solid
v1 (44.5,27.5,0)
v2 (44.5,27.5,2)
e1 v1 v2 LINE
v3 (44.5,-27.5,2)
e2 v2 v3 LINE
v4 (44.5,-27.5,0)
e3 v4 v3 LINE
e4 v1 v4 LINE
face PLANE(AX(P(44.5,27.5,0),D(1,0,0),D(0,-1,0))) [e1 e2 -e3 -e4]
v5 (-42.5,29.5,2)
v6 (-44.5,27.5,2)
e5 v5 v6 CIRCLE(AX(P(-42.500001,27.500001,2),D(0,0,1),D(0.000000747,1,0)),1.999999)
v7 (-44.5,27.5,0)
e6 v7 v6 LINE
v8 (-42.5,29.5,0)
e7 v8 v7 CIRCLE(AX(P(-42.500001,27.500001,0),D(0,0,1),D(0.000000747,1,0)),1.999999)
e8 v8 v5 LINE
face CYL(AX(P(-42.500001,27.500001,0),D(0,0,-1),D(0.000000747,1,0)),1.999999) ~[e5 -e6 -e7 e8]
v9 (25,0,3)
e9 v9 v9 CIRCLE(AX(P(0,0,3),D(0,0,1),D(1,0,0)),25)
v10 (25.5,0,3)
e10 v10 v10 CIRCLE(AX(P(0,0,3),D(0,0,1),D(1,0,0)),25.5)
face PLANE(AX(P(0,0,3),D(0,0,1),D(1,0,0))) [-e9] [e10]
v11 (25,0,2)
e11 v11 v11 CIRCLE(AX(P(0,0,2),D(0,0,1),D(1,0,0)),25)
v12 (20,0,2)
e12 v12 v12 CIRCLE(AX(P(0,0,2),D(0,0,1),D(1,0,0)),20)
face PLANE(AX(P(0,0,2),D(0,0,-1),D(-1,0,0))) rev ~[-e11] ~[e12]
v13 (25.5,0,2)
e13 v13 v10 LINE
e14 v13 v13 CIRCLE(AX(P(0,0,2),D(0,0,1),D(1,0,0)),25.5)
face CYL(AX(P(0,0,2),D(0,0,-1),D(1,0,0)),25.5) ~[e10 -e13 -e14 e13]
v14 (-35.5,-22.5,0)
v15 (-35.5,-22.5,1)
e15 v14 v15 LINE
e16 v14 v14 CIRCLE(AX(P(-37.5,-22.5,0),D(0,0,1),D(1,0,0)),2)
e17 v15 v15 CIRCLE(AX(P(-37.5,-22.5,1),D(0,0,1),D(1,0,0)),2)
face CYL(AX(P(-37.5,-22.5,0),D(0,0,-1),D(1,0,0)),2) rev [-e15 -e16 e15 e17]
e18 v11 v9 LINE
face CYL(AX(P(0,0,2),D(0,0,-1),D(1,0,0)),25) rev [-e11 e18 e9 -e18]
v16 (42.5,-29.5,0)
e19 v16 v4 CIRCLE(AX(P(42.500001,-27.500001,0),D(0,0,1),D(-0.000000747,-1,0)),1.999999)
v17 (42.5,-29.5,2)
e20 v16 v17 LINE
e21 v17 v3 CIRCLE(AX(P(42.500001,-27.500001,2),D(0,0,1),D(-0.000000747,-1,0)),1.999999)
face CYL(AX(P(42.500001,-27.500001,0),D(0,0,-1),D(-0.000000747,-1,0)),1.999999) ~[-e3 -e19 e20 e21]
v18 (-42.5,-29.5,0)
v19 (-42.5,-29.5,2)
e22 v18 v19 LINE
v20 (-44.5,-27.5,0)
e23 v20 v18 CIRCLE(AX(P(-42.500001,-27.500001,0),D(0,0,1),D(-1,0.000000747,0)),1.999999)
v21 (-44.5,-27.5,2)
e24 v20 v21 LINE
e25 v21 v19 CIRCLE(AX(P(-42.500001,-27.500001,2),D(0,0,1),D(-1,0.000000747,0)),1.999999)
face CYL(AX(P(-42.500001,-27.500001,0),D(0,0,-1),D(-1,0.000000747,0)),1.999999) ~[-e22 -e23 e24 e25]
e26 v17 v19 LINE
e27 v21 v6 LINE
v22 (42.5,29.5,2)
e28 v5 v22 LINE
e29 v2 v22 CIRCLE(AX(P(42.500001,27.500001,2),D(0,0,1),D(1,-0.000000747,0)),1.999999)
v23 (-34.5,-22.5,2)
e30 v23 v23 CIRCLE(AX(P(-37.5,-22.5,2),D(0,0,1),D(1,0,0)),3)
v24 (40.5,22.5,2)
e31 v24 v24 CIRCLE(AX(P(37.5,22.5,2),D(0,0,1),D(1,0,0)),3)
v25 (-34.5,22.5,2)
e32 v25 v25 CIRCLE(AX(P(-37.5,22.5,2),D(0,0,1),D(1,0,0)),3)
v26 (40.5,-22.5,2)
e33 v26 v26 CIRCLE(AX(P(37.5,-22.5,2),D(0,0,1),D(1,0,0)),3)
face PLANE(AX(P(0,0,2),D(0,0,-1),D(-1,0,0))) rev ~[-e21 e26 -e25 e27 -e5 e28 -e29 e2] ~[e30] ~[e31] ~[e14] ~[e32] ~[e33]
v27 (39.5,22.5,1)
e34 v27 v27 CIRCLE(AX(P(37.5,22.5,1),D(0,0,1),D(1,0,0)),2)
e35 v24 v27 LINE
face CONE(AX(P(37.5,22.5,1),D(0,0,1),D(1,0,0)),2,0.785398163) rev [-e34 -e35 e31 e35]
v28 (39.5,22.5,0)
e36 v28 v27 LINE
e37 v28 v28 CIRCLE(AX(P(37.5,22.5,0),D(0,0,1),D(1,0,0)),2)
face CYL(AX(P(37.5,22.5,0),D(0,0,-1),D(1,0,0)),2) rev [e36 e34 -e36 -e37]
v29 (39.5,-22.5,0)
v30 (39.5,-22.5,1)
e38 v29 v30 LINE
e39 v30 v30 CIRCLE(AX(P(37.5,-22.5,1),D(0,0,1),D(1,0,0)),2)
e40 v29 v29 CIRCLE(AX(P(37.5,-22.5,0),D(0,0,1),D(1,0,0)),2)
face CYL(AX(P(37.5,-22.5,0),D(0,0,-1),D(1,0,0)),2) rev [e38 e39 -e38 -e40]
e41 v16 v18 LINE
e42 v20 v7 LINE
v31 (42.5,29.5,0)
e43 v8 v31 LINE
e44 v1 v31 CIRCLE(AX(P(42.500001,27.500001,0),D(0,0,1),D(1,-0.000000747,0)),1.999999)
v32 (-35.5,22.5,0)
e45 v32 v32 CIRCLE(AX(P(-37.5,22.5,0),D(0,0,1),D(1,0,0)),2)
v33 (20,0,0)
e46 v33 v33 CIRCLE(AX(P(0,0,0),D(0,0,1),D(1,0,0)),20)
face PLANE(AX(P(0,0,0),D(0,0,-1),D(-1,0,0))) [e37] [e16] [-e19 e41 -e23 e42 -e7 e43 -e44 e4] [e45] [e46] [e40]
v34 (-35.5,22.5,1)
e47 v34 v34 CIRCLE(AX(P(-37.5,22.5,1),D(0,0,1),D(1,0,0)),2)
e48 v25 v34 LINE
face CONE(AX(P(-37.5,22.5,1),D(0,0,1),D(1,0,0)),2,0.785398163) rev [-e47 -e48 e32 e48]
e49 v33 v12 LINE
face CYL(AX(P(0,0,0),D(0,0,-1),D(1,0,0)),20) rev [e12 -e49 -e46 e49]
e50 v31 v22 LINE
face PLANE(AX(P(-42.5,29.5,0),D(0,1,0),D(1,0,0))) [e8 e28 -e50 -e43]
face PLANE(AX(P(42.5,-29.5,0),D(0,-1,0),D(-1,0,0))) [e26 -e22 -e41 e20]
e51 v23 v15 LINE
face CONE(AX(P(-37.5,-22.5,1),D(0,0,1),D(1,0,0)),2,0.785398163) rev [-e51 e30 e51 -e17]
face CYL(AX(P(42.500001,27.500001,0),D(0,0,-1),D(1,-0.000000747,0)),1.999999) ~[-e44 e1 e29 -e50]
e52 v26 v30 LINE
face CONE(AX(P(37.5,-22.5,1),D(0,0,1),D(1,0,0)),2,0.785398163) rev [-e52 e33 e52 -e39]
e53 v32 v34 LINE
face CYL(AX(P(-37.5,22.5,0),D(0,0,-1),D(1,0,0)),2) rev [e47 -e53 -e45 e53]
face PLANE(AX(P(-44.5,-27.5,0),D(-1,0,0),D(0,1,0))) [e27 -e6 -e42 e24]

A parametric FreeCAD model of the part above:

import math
import FreeCAD as App
import Part
import Sketcher
from FreeCAD import Vector
Q = App.Units.Quantity


def edges_at(feature, points):
    """Names of the edges that pass closest to the given points."""
    edges = feature.Shape.Edges
    near = lambda p: min(range(len(edges)), key=lambda i: edges[i].distToShape(Part.Vertex(*p))[0])
    return sorted({f"Edge{near(p) + 1}" for p in points})

doc = App.newDocument("Part")
body = doc.addObject("PartDesign::Body", "Body")

sketch1 = body.newObject("Sketcher::SketchObject", "Sketch")
sketch1.AttachmentSupport = (doc.getObject("XY_Plane"), [""])
sketch1.MapMode = "FlatFace"
sketch1.addGeometry(Part.LineSegment(Vector(42.5, 29.5, 0), Vector(-42.5, 29.5, 0)), False)
sketch1.addGeometry(Part.ArcOfCircle(Part.Circle(Vector(-42.5, 27.5, 0), Vector(0, 0, 1), 2), math.radians(90), math.radians(180)), False)
sketch1.addGeometry(Part.LineSegment(Vector(-44.5, 27.5, 0), Vector(-44.5, -27.5, 0)), False)
sketch1.addGeometry(Part.ArcOfCircle(Part.Circle(Vector(-42.5, -27.5, 0), Vector(0, 0, 1), 2), math.radians(180), math.radians(270)), False)
sketch1.addGeometry(Part.LineSegment(Vector(-42.5, -29.5, 0), Vector(42.5, -29.5, 0)), False)
sketch1.addGeometry(Part.ArcOfCircle(Part.Circle(Vector(42.5, -27.5, 0), Vector(0, 0, 1), 2), math.radians(-90), math.radians(0)), False)
sketch1.addGeometry(Part.LineSegment(Vector(44.5, -27.5, 0), Vector(44.5, 27.5, 0)), False)
sketch1.addGeometry(Part.ArcOfCircle(Part.Circle(Vector(42.5, 27.5, 0), Vector(0, 0, 1), 2), math.radians(0), math.radians(90)), False)
sketch1.addGeometry(Part.Circle(Vector(37.5, -22.5, 0), Vector(0, 0, 1), 2), False)
sketch1.addGeometry(Part.Circle(Vector(-37.5, -22.5, 0), Vector(0, 0, 1), 2), False)
sketch1.addGeometry(Part.Circle(Vector(0, 0, 0), Vector(0, 0, 1), 20), False)
sketch1.addGeometry(Part.Circle(Vector(37.5, 22.5, 0), Vector(0, 0, 1), 2), False)
sketch1.addGeometry(Part.Circle(Vector(-37.5, 22.5, 0), Vector(0, 0, 1), 2), False)
sketch1.addConstraint(Sketcher.Constraint("Tangent", 0, 2, 1, 1))
sketch1.addConstraint(Sketcher.Constraint("Tangent", 1, 2, 2, 1))
sketch1.addConstraint(Sketcher.Constraint("Tangent", 2, 2, 3, 1))
sketch1.addConstraint(Sketcher.Constraint("Tangent", 3, 2, 4, 1))
sketch1.addConstraint(Sketcher.Constraint("Tangent", 4, 2, 5, 1))
sketch1.addConstraint(Sketcher.Constraint("Tangent", 5, 2, 6, 1))
sketch1.addConstraint(Sketcher.Constraint("Tangent", 6, 2, 7, 1))
sketch1.addConstraint(Sketcher.Constraint("Tangent", 7, 2, 0, 1))
sketch1.addConstraint(Sketcher.Constraint("Horizontal", 0))
sketch1.addConstraint(Sketcher.Constraint("Vertical", 2))
sketch1.addConstraint(Sketcher.Constraint("Horizontal", 4))
sketch1.addConstraint(Sketcher.Constraint("Vertical", 6))
sketch1.addConstraint(Sketcher.Constraint("Coincident", 10, 3, -1, 1))
sketch1.addConstraint(Sketcher.Constraint("Equal", 1, 3))
sketch1.addConstraint(Sketcher.Constraint("Equal", 3, 5))
sketch1.addConstraint(Sketcher.Constraint("Equal", 5, 7))
sketch1.addConstraint(Sketcher.Constraint("Equal", 7, 8))
sketch1.addConstraint(Sketcher.Constraint("Equal", 8, 9))
sketch1.addConstraint(Sketcher.Constraint("Equal", 9, 11))
sketch1.addConstraint(Sketcher.Constraint("Equal", 11, 12))
sketch1.addConstraint(Sketcher.Constraint("Symmetric", 1, 3, 5, 3, -1, 1))
sketch1.addConstraint(Sketcher.Constraint("Symmetric", 9, 3, 11, 3, -1, 1))
sketch1.addConstraint(Sketcher.Constraint("Symmetric", 8, 3, 12, 3, -1, 1))
sketch1.addConstraint(Sketcher.Constraint("Symmetric", 8, 3, 9, 3, -2))
sketch1.addConstraint(Sketcher.Constraint("Diameter", 8, Q("4 mm")))
sketch1.addConstraint(Sketcher.Constraint("Diameter", 10, Q("40 mm")))
sketch1.addConstraint(Sketcher.Constraint("DistanceX", 0, 2, 0, 1, Q("85 mm")))
sketch1.addConstraint(Sketcher.Constraint("DistanceY", 2, 2, 2, 1, Q("55 mm")))
sketch1.addConstraint(Sketcher.Constraint("DistanceX", 8, 3, 5, 3, Q("5.000001 mm")))
sketch1.addConstraint(Sketcher.Constraint("DistanceY", 5, 3, 8, 3, Q("5.000001 mm")))
pad1 = body.newObject("PartDesign::Pad", "Pad")
pad1.Profile = sketch1
pad1.Length = 2

sketch2 = body.newObject("Sketcher::SketchObject", "Sketch001")
sketch2.AttachmentSupport = (doc.getObject("XY_Plane"), [""])
sketch2.MapMode = "FlatFace"
sketch2.AttachmentOffset = App.Placement(Vector(0, 0, 2), App.Rotation())
sketch2.addGeometry(Part.Circle(Vector(0, 0, 0), Vector(0, 0, 1), 26), False)
sketch2.addGeometry(Part.Circle(Vector(0, 0, 0), Vector(0, 0, 1), 25), False)
sketch2.addConstraint(Sketcher.Constraint("Coincident", 0, 3, -1, 1))
sketch2.addConstraint(Sketcher.Constraint("Coincident", 1, 3, -1, 1))
sketch2.addConstraint(Sketcher.Constraint("Diameter", 0, Q("51 mm")))
sketch2.addConstraint(Sketcher.Constraint("Diameter", 1, Q("50 mm")))
pad2 = body.newObject("PartDesign::Pad", "Pad001")
pad2.Profile = sketch2
pad2.Length = 1
doc.recompute()

chamfer = body.newObject("PartDesign::Chamfer", "Chamfer")
chamfer.Base = (pad2, edges_at(pad2, [
    (-39.5, 22.5, 2),
    (-39.5, -22.5, 2),
    (35.5, 22.5, 2),
    (35.5, -22.5, 2),
]))
chamfer.Size = 1

doc.recompute()
